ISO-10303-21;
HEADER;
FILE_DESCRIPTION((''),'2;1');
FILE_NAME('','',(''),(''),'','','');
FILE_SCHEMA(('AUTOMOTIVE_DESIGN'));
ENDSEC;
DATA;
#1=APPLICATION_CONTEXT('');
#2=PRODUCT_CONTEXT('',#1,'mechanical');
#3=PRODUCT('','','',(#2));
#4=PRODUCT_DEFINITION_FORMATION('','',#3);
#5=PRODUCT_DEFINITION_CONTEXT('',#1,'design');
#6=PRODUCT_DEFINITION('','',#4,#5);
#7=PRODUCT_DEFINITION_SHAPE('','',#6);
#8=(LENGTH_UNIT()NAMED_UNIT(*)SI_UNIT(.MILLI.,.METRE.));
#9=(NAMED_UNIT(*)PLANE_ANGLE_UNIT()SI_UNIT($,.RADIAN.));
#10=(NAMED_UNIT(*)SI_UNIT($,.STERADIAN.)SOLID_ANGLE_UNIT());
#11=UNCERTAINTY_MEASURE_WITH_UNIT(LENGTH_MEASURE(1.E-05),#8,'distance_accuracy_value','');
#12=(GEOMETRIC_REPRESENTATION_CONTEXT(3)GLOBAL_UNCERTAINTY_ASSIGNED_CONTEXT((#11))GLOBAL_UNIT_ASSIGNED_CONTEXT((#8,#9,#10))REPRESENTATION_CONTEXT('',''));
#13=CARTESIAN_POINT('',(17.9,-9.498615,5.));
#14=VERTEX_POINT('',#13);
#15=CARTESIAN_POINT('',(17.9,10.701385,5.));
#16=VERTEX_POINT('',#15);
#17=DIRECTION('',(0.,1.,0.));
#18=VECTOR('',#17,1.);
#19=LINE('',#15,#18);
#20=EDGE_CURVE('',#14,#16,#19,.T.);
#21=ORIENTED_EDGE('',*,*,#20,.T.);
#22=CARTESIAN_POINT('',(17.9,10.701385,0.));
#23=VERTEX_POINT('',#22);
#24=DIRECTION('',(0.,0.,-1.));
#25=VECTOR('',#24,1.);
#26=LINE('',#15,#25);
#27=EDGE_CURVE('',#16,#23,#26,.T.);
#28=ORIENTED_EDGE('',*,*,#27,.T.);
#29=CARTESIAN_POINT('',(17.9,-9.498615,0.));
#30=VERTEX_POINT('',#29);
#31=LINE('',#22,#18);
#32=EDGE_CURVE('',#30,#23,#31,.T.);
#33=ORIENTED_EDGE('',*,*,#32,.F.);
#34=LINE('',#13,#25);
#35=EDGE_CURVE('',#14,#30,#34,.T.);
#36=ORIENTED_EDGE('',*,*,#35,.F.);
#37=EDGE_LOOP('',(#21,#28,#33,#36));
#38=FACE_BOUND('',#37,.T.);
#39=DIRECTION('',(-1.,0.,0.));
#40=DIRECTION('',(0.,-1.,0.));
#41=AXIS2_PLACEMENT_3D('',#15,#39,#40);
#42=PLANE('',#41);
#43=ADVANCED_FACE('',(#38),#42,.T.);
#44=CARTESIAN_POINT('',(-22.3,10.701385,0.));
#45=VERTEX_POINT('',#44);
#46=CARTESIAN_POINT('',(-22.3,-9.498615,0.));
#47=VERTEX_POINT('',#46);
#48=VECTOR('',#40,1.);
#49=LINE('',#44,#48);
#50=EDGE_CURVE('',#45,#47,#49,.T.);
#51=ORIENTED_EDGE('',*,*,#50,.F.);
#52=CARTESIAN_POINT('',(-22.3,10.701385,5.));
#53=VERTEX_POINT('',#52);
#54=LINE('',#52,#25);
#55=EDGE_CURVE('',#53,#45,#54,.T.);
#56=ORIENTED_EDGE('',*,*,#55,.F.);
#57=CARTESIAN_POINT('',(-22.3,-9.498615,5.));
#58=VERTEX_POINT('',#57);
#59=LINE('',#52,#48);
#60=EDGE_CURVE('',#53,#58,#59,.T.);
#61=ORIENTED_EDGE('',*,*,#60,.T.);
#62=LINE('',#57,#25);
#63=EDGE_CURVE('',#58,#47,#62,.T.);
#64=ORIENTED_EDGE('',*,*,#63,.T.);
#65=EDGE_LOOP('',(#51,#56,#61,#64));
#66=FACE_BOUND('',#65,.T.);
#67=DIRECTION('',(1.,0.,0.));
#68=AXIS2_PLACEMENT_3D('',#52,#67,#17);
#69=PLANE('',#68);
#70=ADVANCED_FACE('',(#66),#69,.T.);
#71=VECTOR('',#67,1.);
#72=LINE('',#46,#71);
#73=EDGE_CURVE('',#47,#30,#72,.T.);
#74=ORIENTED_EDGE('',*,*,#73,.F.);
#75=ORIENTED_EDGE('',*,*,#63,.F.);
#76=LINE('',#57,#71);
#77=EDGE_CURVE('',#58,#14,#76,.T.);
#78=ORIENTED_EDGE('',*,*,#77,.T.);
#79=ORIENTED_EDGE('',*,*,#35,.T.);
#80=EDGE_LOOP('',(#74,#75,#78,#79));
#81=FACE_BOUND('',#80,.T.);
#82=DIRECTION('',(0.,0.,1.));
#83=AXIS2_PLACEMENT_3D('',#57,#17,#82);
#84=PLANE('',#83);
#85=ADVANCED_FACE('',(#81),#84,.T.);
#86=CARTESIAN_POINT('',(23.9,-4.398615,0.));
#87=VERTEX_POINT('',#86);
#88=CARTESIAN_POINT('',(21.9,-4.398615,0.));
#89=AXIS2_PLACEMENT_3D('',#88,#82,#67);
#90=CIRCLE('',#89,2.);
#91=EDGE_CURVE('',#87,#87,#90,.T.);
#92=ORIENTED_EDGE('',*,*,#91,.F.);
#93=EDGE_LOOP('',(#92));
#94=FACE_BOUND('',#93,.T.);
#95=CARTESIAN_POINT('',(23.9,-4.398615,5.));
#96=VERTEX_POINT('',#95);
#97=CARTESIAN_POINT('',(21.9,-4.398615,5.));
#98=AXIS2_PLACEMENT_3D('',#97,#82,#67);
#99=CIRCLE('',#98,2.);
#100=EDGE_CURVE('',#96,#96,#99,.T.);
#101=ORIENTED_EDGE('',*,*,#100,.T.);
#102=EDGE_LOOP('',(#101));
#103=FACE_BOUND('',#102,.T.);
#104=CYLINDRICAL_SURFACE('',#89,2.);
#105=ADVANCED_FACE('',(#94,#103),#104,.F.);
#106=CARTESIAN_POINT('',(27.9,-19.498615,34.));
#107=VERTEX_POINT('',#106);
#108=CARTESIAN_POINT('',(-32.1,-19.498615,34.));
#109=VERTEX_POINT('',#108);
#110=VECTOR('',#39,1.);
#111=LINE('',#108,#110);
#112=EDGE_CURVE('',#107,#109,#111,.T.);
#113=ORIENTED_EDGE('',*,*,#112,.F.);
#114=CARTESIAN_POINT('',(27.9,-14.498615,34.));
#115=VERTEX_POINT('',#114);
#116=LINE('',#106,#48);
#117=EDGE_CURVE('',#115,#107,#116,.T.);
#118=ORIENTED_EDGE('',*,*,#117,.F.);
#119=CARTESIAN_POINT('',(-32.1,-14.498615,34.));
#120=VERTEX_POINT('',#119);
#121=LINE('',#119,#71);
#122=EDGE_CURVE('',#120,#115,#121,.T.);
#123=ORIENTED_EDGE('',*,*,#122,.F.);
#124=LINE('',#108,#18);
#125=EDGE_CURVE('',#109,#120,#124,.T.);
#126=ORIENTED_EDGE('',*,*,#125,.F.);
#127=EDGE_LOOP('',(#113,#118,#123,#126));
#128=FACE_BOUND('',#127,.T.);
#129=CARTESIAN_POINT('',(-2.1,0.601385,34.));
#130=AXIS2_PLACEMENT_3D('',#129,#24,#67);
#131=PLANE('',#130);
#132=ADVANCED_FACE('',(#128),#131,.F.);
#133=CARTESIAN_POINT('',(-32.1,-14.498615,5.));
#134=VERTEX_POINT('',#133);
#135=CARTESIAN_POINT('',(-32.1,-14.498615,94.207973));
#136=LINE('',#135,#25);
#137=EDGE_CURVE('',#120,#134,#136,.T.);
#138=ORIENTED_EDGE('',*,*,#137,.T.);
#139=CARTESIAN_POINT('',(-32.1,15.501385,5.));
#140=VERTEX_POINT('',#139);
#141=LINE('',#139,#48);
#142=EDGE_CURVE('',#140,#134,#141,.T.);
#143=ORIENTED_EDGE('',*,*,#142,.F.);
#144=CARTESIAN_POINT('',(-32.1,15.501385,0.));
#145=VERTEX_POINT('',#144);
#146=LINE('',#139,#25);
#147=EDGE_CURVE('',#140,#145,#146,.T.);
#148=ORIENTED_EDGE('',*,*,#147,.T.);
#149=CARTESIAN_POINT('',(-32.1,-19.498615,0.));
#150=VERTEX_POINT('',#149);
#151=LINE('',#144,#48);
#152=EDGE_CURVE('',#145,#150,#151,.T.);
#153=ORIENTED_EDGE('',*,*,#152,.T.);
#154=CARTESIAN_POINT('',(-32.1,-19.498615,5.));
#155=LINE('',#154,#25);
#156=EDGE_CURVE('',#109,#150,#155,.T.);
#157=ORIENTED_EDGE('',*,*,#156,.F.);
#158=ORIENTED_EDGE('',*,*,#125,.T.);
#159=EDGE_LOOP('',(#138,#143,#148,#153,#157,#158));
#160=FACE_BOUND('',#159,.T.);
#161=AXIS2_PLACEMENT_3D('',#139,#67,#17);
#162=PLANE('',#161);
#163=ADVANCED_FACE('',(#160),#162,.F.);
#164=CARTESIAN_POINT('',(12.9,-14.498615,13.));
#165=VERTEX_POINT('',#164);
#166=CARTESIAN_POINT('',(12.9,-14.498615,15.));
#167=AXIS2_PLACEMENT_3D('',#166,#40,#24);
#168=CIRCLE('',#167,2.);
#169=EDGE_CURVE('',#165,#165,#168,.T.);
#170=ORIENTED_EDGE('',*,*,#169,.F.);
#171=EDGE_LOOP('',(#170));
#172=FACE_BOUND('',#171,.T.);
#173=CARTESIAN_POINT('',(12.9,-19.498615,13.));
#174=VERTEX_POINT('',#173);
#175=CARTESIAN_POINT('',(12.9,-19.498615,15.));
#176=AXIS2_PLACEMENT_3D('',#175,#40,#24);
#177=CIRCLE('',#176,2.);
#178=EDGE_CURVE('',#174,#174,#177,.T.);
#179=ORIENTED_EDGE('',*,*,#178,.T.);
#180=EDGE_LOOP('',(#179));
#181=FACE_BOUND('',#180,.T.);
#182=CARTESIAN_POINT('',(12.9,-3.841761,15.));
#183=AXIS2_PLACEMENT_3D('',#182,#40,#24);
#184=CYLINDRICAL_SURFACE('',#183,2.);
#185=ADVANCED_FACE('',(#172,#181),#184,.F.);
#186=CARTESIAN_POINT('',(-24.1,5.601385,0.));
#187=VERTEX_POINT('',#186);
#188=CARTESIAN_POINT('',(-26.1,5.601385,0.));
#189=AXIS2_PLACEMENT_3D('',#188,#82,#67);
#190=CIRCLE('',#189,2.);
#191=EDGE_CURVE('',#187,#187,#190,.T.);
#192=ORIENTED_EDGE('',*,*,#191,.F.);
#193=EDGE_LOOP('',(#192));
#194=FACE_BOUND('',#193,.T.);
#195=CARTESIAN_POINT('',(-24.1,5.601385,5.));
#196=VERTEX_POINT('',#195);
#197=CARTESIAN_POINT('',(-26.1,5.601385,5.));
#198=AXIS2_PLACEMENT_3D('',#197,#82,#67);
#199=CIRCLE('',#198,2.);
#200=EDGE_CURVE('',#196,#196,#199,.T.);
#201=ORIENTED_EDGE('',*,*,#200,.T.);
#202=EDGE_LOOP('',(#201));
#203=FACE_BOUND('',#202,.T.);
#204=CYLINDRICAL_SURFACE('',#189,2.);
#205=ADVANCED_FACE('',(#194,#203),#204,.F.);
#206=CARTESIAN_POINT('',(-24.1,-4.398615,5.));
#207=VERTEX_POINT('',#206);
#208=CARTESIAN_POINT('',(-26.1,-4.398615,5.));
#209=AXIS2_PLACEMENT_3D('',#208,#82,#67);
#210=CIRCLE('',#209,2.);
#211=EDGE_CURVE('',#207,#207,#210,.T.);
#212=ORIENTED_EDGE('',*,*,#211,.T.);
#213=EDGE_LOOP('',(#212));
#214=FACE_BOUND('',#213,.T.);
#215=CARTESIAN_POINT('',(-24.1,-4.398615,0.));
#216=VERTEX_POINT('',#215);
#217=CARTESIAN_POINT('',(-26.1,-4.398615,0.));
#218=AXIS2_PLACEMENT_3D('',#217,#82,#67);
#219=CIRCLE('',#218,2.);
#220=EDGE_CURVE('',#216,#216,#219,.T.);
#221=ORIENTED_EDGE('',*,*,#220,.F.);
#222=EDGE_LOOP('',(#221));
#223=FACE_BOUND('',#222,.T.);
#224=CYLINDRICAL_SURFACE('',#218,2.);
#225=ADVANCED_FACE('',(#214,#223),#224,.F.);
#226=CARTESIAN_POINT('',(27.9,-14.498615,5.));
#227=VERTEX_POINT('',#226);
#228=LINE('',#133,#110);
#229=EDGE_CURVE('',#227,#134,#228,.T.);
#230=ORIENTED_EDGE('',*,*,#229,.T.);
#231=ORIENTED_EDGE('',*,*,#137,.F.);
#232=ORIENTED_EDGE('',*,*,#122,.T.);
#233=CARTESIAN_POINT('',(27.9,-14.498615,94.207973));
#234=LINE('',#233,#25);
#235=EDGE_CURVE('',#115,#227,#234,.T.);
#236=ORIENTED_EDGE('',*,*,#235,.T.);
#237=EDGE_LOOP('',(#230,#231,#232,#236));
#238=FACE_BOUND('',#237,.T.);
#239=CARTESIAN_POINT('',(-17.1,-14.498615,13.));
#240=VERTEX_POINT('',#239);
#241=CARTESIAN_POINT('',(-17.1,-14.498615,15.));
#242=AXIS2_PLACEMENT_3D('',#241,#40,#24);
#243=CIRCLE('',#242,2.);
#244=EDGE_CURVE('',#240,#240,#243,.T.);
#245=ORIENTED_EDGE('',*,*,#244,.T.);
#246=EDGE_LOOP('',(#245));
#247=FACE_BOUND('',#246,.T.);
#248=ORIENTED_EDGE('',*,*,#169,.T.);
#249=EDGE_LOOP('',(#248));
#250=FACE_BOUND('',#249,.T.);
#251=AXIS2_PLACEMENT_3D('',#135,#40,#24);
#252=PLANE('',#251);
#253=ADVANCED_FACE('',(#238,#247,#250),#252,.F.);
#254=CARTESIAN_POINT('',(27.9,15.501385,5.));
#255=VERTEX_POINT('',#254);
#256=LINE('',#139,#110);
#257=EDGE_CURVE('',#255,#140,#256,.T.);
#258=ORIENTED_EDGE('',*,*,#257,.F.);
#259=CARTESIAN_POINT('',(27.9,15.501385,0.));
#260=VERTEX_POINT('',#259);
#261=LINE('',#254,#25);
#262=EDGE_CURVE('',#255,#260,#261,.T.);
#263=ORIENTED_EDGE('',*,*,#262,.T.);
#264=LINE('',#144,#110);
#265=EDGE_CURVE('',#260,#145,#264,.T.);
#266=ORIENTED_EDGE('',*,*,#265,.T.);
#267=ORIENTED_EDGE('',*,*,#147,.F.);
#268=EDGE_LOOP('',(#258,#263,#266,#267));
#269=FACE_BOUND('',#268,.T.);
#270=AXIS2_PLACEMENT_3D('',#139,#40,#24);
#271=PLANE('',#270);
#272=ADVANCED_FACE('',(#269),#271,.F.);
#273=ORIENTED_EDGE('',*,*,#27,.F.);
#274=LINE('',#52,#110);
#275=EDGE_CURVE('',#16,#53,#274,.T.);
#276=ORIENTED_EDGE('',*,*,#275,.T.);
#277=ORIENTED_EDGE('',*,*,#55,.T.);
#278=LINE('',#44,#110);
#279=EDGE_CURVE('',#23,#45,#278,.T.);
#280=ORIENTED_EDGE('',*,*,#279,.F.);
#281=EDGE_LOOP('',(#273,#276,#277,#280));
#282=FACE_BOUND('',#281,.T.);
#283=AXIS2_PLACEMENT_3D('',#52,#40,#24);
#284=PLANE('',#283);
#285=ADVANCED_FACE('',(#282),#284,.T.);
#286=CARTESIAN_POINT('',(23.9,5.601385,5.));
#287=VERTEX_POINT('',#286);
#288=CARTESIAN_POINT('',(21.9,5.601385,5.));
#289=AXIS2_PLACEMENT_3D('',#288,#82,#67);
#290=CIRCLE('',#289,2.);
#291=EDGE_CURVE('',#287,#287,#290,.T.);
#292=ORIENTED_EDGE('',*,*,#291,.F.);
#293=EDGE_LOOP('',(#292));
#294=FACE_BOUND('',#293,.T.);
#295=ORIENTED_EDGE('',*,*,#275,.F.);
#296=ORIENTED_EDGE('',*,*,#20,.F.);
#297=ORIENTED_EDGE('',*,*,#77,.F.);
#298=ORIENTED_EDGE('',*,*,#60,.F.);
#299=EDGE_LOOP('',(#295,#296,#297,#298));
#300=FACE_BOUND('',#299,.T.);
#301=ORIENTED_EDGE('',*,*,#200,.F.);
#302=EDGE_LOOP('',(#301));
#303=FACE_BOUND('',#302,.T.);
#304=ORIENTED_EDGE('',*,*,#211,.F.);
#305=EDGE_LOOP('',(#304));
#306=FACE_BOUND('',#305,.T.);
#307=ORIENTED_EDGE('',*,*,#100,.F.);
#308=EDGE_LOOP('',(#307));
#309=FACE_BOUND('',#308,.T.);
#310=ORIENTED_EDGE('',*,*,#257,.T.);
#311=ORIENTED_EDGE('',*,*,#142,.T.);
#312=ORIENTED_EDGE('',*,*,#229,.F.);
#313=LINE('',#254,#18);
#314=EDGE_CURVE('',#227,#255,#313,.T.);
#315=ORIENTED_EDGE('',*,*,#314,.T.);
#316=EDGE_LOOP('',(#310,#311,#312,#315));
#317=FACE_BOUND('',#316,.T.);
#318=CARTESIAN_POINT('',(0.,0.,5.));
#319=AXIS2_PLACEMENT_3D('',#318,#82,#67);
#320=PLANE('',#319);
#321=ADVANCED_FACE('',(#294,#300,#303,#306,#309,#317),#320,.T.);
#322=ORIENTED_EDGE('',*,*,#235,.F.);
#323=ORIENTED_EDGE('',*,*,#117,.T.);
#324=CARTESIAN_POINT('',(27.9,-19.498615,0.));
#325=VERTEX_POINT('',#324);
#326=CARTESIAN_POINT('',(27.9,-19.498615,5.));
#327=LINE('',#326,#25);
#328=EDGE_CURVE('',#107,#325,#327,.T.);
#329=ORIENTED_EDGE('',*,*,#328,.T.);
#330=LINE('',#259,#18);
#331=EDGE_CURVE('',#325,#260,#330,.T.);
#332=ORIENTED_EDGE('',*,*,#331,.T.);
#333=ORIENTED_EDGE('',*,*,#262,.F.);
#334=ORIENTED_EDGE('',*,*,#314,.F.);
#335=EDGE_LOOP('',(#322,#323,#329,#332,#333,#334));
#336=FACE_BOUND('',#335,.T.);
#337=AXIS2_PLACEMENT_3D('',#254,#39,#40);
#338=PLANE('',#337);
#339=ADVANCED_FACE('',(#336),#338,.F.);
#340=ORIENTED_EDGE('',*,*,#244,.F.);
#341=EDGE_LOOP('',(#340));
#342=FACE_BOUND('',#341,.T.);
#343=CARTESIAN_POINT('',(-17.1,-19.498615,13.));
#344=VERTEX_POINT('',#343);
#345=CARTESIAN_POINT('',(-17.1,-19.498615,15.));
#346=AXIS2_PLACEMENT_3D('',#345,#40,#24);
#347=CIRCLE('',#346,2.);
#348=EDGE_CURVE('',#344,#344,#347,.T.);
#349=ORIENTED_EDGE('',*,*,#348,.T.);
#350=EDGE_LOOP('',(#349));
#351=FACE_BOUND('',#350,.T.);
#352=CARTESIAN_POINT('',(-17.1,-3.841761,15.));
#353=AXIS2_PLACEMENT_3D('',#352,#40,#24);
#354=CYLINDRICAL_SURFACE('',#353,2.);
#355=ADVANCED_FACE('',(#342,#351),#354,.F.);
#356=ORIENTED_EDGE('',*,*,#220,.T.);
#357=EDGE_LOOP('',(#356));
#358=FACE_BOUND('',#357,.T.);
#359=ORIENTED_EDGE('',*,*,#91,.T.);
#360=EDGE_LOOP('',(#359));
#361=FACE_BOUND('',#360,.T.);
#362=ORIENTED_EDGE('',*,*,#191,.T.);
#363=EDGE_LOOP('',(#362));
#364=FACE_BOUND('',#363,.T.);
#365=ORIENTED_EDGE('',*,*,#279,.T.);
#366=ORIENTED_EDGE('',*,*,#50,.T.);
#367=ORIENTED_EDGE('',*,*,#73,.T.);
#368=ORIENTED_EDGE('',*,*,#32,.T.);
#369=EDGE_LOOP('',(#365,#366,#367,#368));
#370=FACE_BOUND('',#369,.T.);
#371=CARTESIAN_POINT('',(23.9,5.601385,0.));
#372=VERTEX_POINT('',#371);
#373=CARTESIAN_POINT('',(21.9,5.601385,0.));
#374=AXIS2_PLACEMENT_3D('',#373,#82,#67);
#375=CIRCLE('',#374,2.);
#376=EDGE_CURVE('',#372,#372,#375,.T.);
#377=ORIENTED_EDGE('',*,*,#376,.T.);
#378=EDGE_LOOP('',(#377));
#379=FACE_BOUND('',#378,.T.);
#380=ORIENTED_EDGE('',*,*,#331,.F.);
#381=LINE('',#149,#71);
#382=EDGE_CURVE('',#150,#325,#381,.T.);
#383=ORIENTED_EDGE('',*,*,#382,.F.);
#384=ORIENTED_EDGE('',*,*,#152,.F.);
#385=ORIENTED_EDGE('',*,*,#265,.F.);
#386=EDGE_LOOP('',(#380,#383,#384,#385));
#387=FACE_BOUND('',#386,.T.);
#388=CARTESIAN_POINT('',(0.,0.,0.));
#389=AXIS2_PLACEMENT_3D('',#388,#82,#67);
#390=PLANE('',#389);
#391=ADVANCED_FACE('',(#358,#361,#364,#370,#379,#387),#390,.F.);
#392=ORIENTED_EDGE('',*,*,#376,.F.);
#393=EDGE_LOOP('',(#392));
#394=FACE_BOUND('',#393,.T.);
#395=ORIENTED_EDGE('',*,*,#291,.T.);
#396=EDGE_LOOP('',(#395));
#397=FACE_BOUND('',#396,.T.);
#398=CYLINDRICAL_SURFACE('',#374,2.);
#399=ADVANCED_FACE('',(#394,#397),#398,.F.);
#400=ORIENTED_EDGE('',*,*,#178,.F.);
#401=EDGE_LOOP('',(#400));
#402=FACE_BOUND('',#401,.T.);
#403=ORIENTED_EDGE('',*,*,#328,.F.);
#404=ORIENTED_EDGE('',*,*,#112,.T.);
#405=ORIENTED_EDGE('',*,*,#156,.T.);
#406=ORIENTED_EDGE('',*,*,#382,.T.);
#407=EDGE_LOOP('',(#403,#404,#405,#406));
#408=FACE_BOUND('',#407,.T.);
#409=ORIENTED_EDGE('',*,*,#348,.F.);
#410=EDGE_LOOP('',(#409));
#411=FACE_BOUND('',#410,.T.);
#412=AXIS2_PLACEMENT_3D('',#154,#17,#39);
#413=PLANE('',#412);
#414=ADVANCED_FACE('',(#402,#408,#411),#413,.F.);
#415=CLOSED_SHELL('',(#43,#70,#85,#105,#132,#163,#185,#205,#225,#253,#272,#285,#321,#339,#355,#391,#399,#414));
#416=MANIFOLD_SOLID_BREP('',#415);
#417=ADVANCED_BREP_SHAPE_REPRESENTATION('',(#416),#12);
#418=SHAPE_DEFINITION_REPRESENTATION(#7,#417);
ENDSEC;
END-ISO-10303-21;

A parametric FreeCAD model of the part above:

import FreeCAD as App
import Part
import Sketcher

V = App.Vector
Q = App.Units.Quantity


def add_polygon(sketch, points):
    """Adds a closed chain of lines whose ends are joined by coincident constraints."""
    first, n = sketch.GeometryCount, len(points)
    for a, b in zip(points, points[1:] + points[:1]):
        sketch.addGeometry(Part.LineSegment(App.Vector(*a, 0), App.Vector(*b, 0)), False)
    for i in range(n):
        sketch.addConstraint(Sketcher.Constraint("Coincident", first + i, 2, first + (i + 1) % n, 1))

doc = App.newDocument("Part")
params = doc.addObject("Spreadsheet::Sheet", "Params")
for row, (alias, value) in enumerate([
    ("sketch1_width", "60 mm"),
    ("sketch1_height", "35 mm"),
    ("sketch1_width2", "40.2 mm"),
    ("sketch1_height2", "20.2 mm"),
    ("pad1_length", "5 mm"),
    ("sketch2_width", "60 mm"),
    ("sketch2_height", "5 mm"),
    ("pad2_length", "29 mm"),
    ("sketch3_diameter", "4 mm"),
    ("pocket1_length", "10 mm"),
    ("sketch4_diameter", "4 mm"),
], start=1):
    params.set(f"A{row}", alias)
    params.set(f"B{row}", "=" + value)
    params.setAlias(f"B{row}", alias)

body = doc.addObject("PartDesign::Body", "Body")

# Sketch on XY plane
sketch1 = body.newObject("Sketcher::SketchObject", "Sketch")
sketch1.AttachmentSupport = (doc.getObject("XY_Plane"), [""])
sketch1.MapMode = "FlatFace"
add_polygon(sketch1, [(-32.1, 15.501385), (-32.1, -19.498615), (27.9, -19.498615), (27.9, 15.501385)])  # lines 0-3
add_polygon(sketch1, [(17.9, -9.498615), (-22.3, -9.498615), (-22.3, 10.701385), (17.9, 10.701385)])  # lines 4-7
sketch1.addConstraint([
    Sketcher.Constraint("Vertical", 0),
    Sketcher.Constraint("Horizontal", 1),
    Sketcher.Constraint("Vertical", 2),
    Sketcher.Constraint("Horizontal", 3),
    Sketcher.Constraint("Horizontal", 4),
    Sketcher.Constraint("Vertical", 5),
    Sketcher.Constraint("Horizontal", 6),
    Sketcher.Constraint("Vertical", 7),
    Sketcher.Constraint("DistanceX", 1, 1, 1, 2, Q("60 mm")),
    Sketcher.Constraint("DistanceY", 0, 2, 0, 1, Q("35 mm")),
    Sketcher.Constraint("DistanceX", 4, 2, 4, 1, Q("40.2 mm")),
    Sketcher.Constraint("DistanceY", 5, 1, 5, 2, Q("20.2 mm")),
    Sketcher.Constraint("DistanceY", 0, 2, 4, 2, Q("10 mm")),
    Sketcher.Constraint("DistanceX", 6, 2, 2, 2, Q("10 mm")),
    Sketcher.Constraint("DistanceX", 0, 2, -1, 1, Q("32.1 mm")),
    Sketcher.Constraint("DistanceY", 0, 2, -1, 1, Q("19.498615 mm")),
])
sketch1.setExpression("Constraints[16]", "Params.sketch1_width")
sketch1.setExpression("Constraints[17]", "Params.sketch1_height")
sketch1.setExpression("Constraints[18]", "Params.sketch1_width2")
sketch1.setExpression("Constraints[19]", "Params.sketch1_height2")
pad1 = body.newObject("PartDesign::Pad", "Pad")
pad1.Profile = sketch1
pad1.setExpression("Length", "Params.pad1_length")

# Sketch on XY plane
sketch2 = body.newObject("Sketcher::SketchObject", "Sketch001")
sketch2.AttachmentSupport = (doc.getObject("XY_Plane"), [""])
sketch2.MapMode = "FlatFace"
sketch2.AttachmentOffset = App.Placement(V(0, 0, 5), App.Rotation())
add_polygon(sketch2, [(-32.1, -14.498615), (-32.1, -19.498615), (27.9, -19.498615), (27.9, -14.498615)])  # lines 0-3
sketch2.addConstraint([
    Sketcher.Constraint("Vertical", 0),
    Sketcher.Constraint("Horizontal", 1),
    Sketcher.Constraint("Vertical", 2),
    Sketcher.Constraint("Horizontal", 3),
    Sketcher.Constraint("DistanceX", 1, 1, 1, 2, Q("60 mm")),
    Sketcher.Constraint("DistanceY", 0, 2, 0, 1, Q("5 mm")),
    Sketcher.Constraint("DistanceX", 0, 2, -1, 1, Q("32.1 mm")),
    Sketcher.Constraint("DistanceY", 0, 2, -1, 1, Q("19.498615 mm")),
])
sketch2.setExpression("Constraints[8]", "Params.sketch2_width")
sketch2.setExpression("Constraints[9]", "Params.sketch2_height")
pad2 = body.newObject("PartDesign::Pad", "Pad001")
pad2.Profile = sketch2
pad2.setExpression("Length", "Params.pad2_length")

# Sketch on XZ plane
sketch3 = body.newObject("Sketcher::SketchObject", "Sketch002")
sketch3.AttachmentSupport = (doc.getObject("XZ_Plane"), [""])
sketch3.MapMode = "FlatFace"
sketch3.AttachmentOffset = App.Placement(V(0, 0, 19.498615), App.Rotation())
sketch3.addGeometry([
    Part.Circle(V(-17.1, 15, 0), V(0, 0, 1), 2),
    Part.Circle(V(12.9, 15, 0), V(0, 0, 1), 2),
], False)
sketch3.addConstraint([
    Sketcher.Constraint("Equal", 0, 1),
    Sketcher.Constraint("Horizontal", 0, 3, 1, 3),
    Sketcher.Constraint("Diameter", 0, Q("4 mm")),
    Sketcher.Constraint("DistanceY", -1, 1, 0, 3, Q("15 mm")),
    Sketcher.Constraint("DistanceX", 0, 3, 1, 3, Q("30 mm")),
    Sketcher.Constraint("DistanceX", 0, 3, -1, 1, Q("17.1 mm")),
])
sketch3.setExpression("Constraints[2]", "Params.sketch3_diameter")
pocket1 = body.newObject("PartDesign::Pocket", "Pocket")
pocket1.Profile = sketch3
pocket1.setExpression("Length", "Params.pocket1_length")

# Sketch on XY plane
sketch4 = body.newObject("Sketcher::SketchObject", "Sketch003")
sketch4.AttachmentSupport = (doc.getObject("XY_Plane"), [""])
sketch4.MapMode = "FlatFace"
sketch4.AttachmentOffset = App.Placement(V(0, 0, 5), App.Rotation())
sketch4.addGeometry([
    Part.Circle(V(21.9, 5.601385, 0), V(0, 0, 1), 2),
    Part.Circle(V(21.9, -4.398615, 0), V(0, 0, 1), 2),
    Part.Circle(V(-26.1, -4.398615, 0), V(0, 0, 1), 2),
    Part.Circle(V(-26.1, 5.601385, 0), V(0, 0, 1), 2),
], False)
sketch4.addConstraint([
    Sketcher.Constraint("Equal", 0, 1),
    Sketcher.Constraint("Equal", 1, 2),
    Sketcher.Constraint("Equal", 2, 3),
    Sketcher.Constraint("Horizontal", 1, 3, 2, 3),
    Sketcher.Constraint("Horizontal", 0, 3, 3, 3),
    Sketcher.Constraint("Vertical", 0, 3, 1, 3),
    Sketcher.Constraint("Vertical", 2, 3, 3, 3),
    Sketcher.Constraint("Diameter", 0, Q("4 mm")),
    Sketcher.Constraint("DistanceY", 1, 3, 0, 3, Q("10 mm")),
    Sketcher.Constraint("DistanceX", 2, 3, 1, 3, Q("48 mm")),
    Sketcher.Constraint("DistanceX", -1, 1, 0, 3, Q("21.9 mm")),
    Sketcher.Constraint("DistanceY", -1, 1, 0, 3, Q("5.601385 mm")),
])
sketch4.setExpression("Constraints[7]", "Params.sketch4_diameter")
pocket2 = body.newObject("PartDesign::Pocket", "Pocket001")
pocket2.Profile = sketch4
pocket2.Type = "ThroughAll"

doc.recompute()
